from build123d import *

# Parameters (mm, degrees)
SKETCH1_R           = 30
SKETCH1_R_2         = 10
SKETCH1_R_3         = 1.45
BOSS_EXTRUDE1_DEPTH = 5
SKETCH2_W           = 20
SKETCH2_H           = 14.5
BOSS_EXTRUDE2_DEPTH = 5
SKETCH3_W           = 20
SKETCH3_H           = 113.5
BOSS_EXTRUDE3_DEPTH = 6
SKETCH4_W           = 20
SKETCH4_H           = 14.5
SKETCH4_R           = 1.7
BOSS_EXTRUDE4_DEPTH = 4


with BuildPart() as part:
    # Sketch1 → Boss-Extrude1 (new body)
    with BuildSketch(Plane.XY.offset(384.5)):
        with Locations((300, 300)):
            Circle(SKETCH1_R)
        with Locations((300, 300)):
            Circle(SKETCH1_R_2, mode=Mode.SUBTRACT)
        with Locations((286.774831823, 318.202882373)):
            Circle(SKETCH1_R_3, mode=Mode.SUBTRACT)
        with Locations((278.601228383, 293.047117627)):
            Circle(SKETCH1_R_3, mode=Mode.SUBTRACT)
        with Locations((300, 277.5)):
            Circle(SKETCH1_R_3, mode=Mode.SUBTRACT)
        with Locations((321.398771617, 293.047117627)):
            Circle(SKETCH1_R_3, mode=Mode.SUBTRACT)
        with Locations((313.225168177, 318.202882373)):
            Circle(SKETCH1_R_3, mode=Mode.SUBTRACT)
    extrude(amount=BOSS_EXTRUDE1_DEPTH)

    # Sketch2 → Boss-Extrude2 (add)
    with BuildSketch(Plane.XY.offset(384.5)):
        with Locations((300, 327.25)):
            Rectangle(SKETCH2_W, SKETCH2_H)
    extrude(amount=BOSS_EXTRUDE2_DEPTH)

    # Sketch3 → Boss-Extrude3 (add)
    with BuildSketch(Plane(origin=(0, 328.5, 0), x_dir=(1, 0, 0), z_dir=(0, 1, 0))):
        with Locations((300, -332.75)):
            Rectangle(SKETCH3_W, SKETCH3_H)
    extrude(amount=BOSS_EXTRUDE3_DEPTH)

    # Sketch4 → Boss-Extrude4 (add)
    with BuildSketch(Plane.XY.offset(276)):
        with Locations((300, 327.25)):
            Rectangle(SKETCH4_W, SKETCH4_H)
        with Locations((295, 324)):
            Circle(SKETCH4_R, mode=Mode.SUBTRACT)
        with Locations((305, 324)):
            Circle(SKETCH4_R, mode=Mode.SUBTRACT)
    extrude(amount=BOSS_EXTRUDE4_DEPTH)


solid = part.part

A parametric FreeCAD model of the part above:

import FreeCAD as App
import Part
import Sketcher
Q = App.Units.Quantity


def add_polygon(sketch, points):
    """Adds a closed chain of lines whose ends are joined by coincident constraints."""
    first, n = sketch.GeometryCount, len(points)
    for a, b in zip(points, points[1:] + points[:1]):
        sketch.addGeometry(Part.LineSegment(App.Vector(*a, 0), App.Vector(*b, 0)), False)
    for i in range(n):
        sketch.addConstraint(Sketcher.Constraint("Coincident", first + i, 2, first + (i + 1) % n, 1))

doc = App.newDocument("Part")
body = doc.addObject("PartDesign::Body", "Body")

# Sketch on XY plane
sketch1 = body.newObject("Sketcher::SketchObject", "Sketch")
sketch1.AttachmentSupport = (doc.getObject("XY_Plane"), [""])
sketch1.MapMode = "FlatFace"
sketch1.AttachmentOffset = App.Placement(App.Vector(0, 0, 384.5), App.Rotation())
sketch1.addGeometry([
    Part.Circle(App.Vector(300, 300, 0), App.Vector(0, 0, 1), 30),  # 0
    Part.Circle(App.Vector(300, 277.5, 0), App.Vector(0, 0, 1), 1.4),  # 1
    Part.Circle(App.Vector(278.6, 293, 0), App.Vector(0, 0, 1), 1.4),  # 2
    Part.Circle(App.Vector(321.4, 293, 0), App.Vector(0, 0, 1), 1.4),  # 3
    Part.Circle(App.Vector(286.8, 318.2, 0), App.Vector(0, 0, 1), 1.4),  # 4
    Part.Circle(App.Vector(300, 300, 0), App.Vector(0, 0, 1), 10),  # 5
    Part.Circle(App.Vector(313.2, 318.2, 0), App.Vector(0, 0, 1), 1.4),  # 6
], False)
sketch1.addConstraint([
    Sketcher.Constraint("Coincident", 5, 3, 0, 3),
    Sketcher.Constraint("Equal", 1, 2),
    Sketcher.Constraint("Equal", 2, 3),
    Sketcher.Constraint("Equal", 3, 4),
    Sketcher.Constraint("Equal", 4, 6),
    Sketcher.Constraint("Horizontal", 2, 3, 3, 3),
    Sketcher.Constraint("Horizontal", 4, 3, 6, 3),
    Sketcher.Constraint("Vertical", 0, 3, 1, 3),
    Sketcher.Constraint("Diameter", 0, Q("60 mm")),
    Sketcher.Constraint("Diameter", 5, Q("20 mm")),
    Sketcher.Constraint("Diameter", 1, Q("2.9 mm")),
    Sketcher.Constraint("DistanceX", -1, 1, 0, 3, Q("300 mm")),
    Sketcher.Constraint("DistanceY", -1, 1, 0, 3, Q("300 mm")),
    Sketcher.Constraint("DistanceY", -1, 1, 1, 3, Q("277.5 mm")),
    Sketcher.Constraint("DistanceX", -1, 1, 2, 3, Q("278.601228 mm")),
    Sketcher.Constraint("DistanceX", -1, 1, 3, 3, Q("321.398772 mm")),
    Sketcher.Constraint("DistanceX", -1, 1, 4, 3, Q("286.774832 mm")),
    Sketcher.Constraint("DistanceX", -1, 1, 6, 3, Q("313.225168 mm")),
    Sketcher.Constraint("DistanceY", -1, 1, 2, 3, Q("293.047118 mm")),
    Sketcher.Constraint("DistanceY", -1, 1, 4, 3, Q("318.202882 mm")),
])
pad1 = body.newObject("PartDesign::Pad", "Pad")
pad1.Profile = sketch1
pad1.Length = 5

# Sketch on XY plane
sketch2 = body.newObject("Sketcher::SketchObject", "Sketch001")
sketch2.AttachmentSupport = (doc.getObject("XY_Plane"), [""])
sketch2.MapMode = "FlatFace"
sketch2.AttachmentOffset = App.Placement(App.Vector(0, 0, 384.5), App.Rotation())
add_polygon(sketch2, [(290, 334), (290, 320), (310, 320), (310, 334)])  # lines 0-3
sketch2.addConstraint([
    Sketcher.Constraint("Vertical", 0),
    Sketcher.Constraint("Horizontal", 1),
    Sketcher.Constraint("Vertical", 2),
    Sketcher.Constraint("Horizontal", 3),
    Sketcher.Constraint("DistanceX", 1, 1, 1, 2, Q("20 mm")),
    Sketcher.Constraint("DistanceY", 0, 2, 0, 1, Q("14.5 mm")),
    Sketcher.Constraint("DistanceX", -1, 1, 0, 2, Q("290 mm")),
    Sketcher.Constraint("DistanceY", -1, 1, 0, 2, Q("320 mm")),
])
pad2 = body.newObject("PartDesign::Pad", "Pad001")
pad2.Profile = sketch2
pad2.Length = 5

# Sketch on XZ plane
sketch3 = body.newObject("Sketcher::SketchObject", "Sketch002")
sketch3.AttachmentSupport = (doc.getObject("XZ_Plane"), [""])
sketch3.MapMode = "FlatFace"
sketch3.AttachmentOffset = App.Placement(App.Vector(0, 0, -328.5), App.Rotation())
add_polygon(sketch3, [(290, 276), (290, 390), (310, 390), (310, 276)])  # lines 0-3
sketch3.addConstraint([
    Sketcher.Constraint("Vertical", 0),
    Sketcher.Constraint("Horizontal", 1),
    Sketcher.Constraint("Vertical", 2),
    Sketcher.Constraint("Horizontal", 3),
    Sketcher.Constraint("DistanceX", 1, 1, 1, 2, Q("20 mm")),
    Sketcher.Constraint("DistanceY", 0, 1, 0, 2, Q("113.5 mm")),
    Sketcher.Constraint("DistanceX", -1, 1, 0, 2, Q("290 mm")),
    Sketcher.Constraint("DistanceY", -1, 1, 2, 2, Q("276 mm")),
])
pad3 = body.newObject("PartDesign::Pad", "Pad002")
pad3.Profile = sketch3
pad3.Length = 6
pad3.Reversed = True

# Sketch on XY plane
sketch4 = body.newObject("Sketcher::SketchObject", "Sketch003")
sketch4.AttachmentSupport = (doc.getObject("XY_Plane"), [""])
sketch4.MapMode = "FlatFace"
sketch4.AttachmentOffset = App.Placement(App.Vector(0, 0, 276), App.Rotation())
add_polygon(sketch4, [(290, 334.5), (290, 320), (310, 320), (310, 334.5)])  # lines 0-3
sketch4.addGeometry(Part.Circle(App.Vector(295, 324, 0), App.Vector(0, 0, 1), 1.7), False)  # 4
sketch4.addGeometry(Part.Circle(App.Vector(305, 324, 0), App.Vector(0, 0, 1), 1.7), False)  # 5
sketch4.addConstraint([
    Sketcher.Constraint("Vertical", 0),
    Sketcher.Constraint("Horizontal", 1),
    Sketcher.Constraint("Vertical", 2),
    Sketcher.Constraint("Horizontal", 3),
    Sketcher.Constraint("Equal", 4, 5),
    Sketcher.Constraint("Horizontal", 4, 3, 5, 3),
    Sketcher.Constraint("Diameter", 4, Q("3.4 mm")),
    Sketcher.Constraint("DistanceX", 1, 1, 1, 2, Q("20 mm")),
    Sketcher.Constraint("DistanceY", 0, 2, 0, 1, Q("14.5 mm")),
    Sketcher.Constraint("DistanceX", -1, 1, 4, 3, Q("295 mm")),
    Sketcher.Constraint("DistanceY", -1, 1, 4, 3, Q("324 mm")),
    Sketcher.Constraint("DistanceX", -1, 1, 5, 3, Q("305 mm")),
    Sketcher.Constraint("DistanceX", -1, 1, 0, 2, Q("290 mm")),
    Sketcher.Constraint("DistanceY", -1, 1, 0, 2, Q("320 mm")),
])
pad4 = body.newObject("PartDesign::Pad", "Pad003")
pad4.Profile = sketch4
pad4.Length = 4

doc.recompute()
